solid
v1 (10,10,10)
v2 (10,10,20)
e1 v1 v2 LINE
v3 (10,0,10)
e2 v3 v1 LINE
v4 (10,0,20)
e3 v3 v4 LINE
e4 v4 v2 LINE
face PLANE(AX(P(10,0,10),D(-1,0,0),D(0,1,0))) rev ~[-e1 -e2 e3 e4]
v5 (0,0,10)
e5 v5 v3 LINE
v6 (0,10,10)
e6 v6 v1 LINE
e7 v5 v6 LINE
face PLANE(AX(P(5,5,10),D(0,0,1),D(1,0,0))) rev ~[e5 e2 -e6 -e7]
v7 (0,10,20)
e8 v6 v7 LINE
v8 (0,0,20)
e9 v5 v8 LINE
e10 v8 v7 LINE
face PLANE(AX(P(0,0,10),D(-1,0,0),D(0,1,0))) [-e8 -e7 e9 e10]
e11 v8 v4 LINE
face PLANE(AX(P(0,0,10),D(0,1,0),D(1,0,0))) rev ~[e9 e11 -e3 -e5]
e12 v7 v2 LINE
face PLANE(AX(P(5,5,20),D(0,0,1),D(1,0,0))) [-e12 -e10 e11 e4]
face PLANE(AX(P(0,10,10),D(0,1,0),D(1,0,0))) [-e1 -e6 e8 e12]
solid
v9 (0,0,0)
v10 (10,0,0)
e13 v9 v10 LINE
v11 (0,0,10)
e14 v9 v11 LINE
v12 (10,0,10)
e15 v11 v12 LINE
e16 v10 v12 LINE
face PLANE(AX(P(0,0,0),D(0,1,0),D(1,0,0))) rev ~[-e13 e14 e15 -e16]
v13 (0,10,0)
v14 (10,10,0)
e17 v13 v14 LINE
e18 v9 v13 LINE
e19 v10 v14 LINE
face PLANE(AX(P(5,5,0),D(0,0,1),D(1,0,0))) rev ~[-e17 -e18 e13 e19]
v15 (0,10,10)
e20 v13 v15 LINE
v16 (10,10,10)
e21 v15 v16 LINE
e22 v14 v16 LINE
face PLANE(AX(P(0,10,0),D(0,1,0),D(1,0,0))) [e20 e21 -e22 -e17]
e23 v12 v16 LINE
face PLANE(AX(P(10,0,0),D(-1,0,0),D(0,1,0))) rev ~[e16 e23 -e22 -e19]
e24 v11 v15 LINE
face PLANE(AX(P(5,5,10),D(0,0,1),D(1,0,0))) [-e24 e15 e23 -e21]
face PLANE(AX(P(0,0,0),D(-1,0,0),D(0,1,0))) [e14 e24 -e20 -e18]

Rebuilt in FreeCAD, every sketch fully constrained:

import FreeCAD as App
import Part
import Sketcher


def add_polygon(sketch, points):
    """Adds a closed chain of lines whose ends are joined by coincident constraints."""
    first, n = sketch.GeometryCount, len(points)
    for a, b in zip(points, points[1:] + points[:1]):
        sketch.addGeometry(Part.LineSegment(App.Vector(*a, 0), App.Vector(*b, 0)), False)
    for i in range(n):
        sketch.addConstraint(Sketcher.Constraint("Coincident", first + i, 2, first + (i + 1) % n, 1))

doc = App.newDocument("Part")
body = doc.addObject("PartDesign::Body", "Body")

# Sketch on XY plane
sketch1 = doc.addObject("Sketcher::SketchObject", "Sketch")
body.addObject(sketch1)
sketch1.AttachmentSupport = (doc.XY_Plane, [""])
sketch1.MapMode = "FlatFace"
sketch1.AttachmentOffset = App.Placement(App.Vector(0, 0, 10), App.Rotation())
add_polygon(sketch1, [(0, 10), (0, 0), (10, 0), (10, 10)])  # lines 0-3
sketch1.addConstraint(Sketcher.Constraint("Vertical", 0))
sketch1.addConstraint(Sketcher.Constraint("Horizontal", 1))
sketch1.addConstraint(Sketcher.Constraint("Vertical", 2))
sketch1.addConstraint(Sketcher.Constraint("Horizontal", 3))
sketch1.addConstraint(Sketcher.Constraint("Coincident", 0, 2, -1, 1))
sketch1.addConstraint(Sketcher.Constraint("Equal", 3, 0))
sketch1.addConstraint(Sketcher.Constraint("DistanceX", 1, 1, 1, 2, 10.0))
pad1 = doc.addObject("PartDesign::Pad", "Pad")
body.addObject(pad1)
pad1.Profile = sketch1
pad1.Length = 10
body2 = doc.addObject("PartDesign::Body", "Body001")

# Sketch on XY plane
sketch2 = doc.addObject("Sketcher::SketchObject", "Sketch001")
body2.addObject(sketch2)
sketch2.AttachmentSupport = (doc.getObject("XY_Plane001"), [""])
sketch2.MapMode = "FlatFace"
add_polygon(sketch2, [(0, 10), (0, 0), (10, 0), (10, 10)])  # lines 0-3
sketch2.addConstraint(Sketcher.Constraint("Vertical", 0))
sketch2.addConstraint(Sketcher.Constraint("Horizontal", 1))
sketch2.addConstraint(Sketcher.Constraint("Vertical", 2))
sketch2.addConstraint(Sketcher.Constraint("Horizontal", 3))
sketch2.addConstraint(Sketcher.Constraint("Coincident", 0, 2, -1, 1))
sketch2.addConstraint(Sketcher.Constraint("Equal", 3, 0))
sketch2.addConstraint(Sketcher.Constraint("DistanceX", 1, 1, 1, 2, 10.0))
pad2 = doc.addObject("PartDesign::Pad", "Pad001")
body2.addObject(pad2)
pad2.Profile = sketch2
pad2.Length = 10

doc.recompute()
